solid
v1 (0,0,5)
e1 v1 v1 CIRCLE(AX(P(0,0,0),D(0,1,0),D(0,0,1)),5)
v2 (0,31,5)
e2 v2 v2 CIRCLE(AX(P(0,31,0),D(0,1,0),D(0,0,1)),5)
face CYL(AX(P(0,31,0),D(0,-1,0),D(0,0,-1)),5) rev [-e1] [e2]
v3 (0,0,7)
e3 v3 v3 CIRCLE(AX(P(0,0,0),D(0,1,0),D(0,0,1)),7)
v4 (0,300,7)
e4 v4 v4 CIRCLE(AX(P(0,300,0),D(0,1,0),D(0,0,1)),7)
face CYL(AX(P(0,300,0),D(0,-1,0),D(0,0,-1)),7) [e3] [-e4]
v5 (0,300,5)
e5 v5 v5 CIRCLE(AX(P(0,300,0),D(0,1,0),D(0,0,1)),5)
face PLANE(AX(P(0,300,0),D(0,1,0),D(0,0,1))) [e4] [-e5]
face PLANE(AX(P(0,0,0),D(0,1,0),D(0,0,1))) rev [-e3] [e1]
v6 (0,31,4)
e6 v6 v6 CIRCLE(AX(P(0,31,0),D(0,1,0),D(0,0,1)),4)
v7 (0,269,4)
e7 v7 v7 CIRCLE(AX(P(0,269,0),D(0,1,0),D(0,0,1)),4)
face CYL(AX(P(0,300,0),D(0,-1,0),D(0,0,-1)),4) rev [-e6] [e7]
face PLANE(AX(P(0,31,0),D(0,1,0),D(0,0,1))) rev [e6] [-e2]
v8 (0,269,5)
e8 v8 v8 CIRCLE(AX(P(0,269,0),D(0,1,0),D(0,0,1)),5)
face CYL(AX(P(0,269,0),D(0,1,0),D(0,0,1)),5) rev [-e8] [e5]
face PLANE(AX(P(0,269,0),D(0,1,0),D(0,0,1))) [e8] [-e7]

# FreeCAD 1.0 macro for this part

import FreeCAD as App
import Part
import Sketcher
from FreeCAD import Vector
Q = App.Units.Quantity

doc = App.newDocument("Part")
body = doc.addObject("PartDesign::Body", "Body")

# Sketch on XZ plane
sketch1 = body.newObject("Sketcher::SketchObject", "Sketch")
sketch1.AttachmentSupport = (doc.getObject("XZ_Plane"), [""])
sketch1.MapMode = "FlatFace"
sketch1.addGeometry(Part.Circle(Vector(0, 0, 0), Vector(0, 0, 1), 7), False)
sketch1.addGeometry(Part.Circle(Vector(0, 0, 0), Vector(0, 0, 1), 4), False)
sketch1.addConstraint(Sketcher.Constraint("Coincident", 0, 3, -1, 1))
sketch1.addConstraint(Sketcher.Constraint("Coincident", 1, 3, -1, 1))
sketch1.addConstraint(Sketcher.Constraint("Diameter", 0, Q("14 mm")))
sketch1.addConstraint(Sketcher.Constraint("Diameter", 1, Q("8 mm")))
pad1 = body.newObject("PartDesign::Pad", "Pad")
pad1.Profile = sketch1
pad1.Length = 300
pad1.Reversed = True

# Sketch on XZ plane
sketch2 = body.newObject("Sketcher::SketchObject", "Sketch001")
sketch2.AttachmentSupport = (doc.getObject("XZ_Plane"), [""])
sketch2.MapMode = "FlatFace"
sketch2.AttachmentOffset = App.Placement(Vector(0, 0, -300), App.Rotation())
sketch2.addGeometry(Part.Circle(Vector(0, 0, 0), Vector(0, 0, 1), 5), False)
sketch2.addConstraint(Sketcher.Constraint("Coincident", 0, 3, -1, 1))
sketch2.addConstraint(Sketcher.Constraint("Diameter", 0, Q("10 mm")))
pocket1 = body.newObject("PartDesign::Pocket", "Pocket")
pocket1.Profile = sketch2
pocket1.Length = 31
pocket1.Reversed = True

# Sketch on XZ plane
sketch3 = body.newObject("Sketcher::SketchObject", "Sketch002")
sketch3.AttachmentSupport = (doc.getObject("XZ_Plane"), [""])
sketch3.MapMode = "FlatFace"
sketch3.AttachmentOffset = App.Placement(Vector(0, 0, -31), App.Rotation())
sketch3.addGeometry(Part.Circle(Vector(0, 0, 0), Vector(0, 0, 1), 5), False)
sketch3.addConstraint(Sketcher.Constraint("Coincident", 0, 3, -1, 1))
sketch3.addConstraint(Sketcher.Constraint("Diameter", 0, Q("10 mm")))
pocket2 = body.newObject("PartDesign::Pocket", "Pocket001")
pocket2.Profile = sketch3
pocket2.Length = 31
pocket2.Reversed = True

doc.recompute()
